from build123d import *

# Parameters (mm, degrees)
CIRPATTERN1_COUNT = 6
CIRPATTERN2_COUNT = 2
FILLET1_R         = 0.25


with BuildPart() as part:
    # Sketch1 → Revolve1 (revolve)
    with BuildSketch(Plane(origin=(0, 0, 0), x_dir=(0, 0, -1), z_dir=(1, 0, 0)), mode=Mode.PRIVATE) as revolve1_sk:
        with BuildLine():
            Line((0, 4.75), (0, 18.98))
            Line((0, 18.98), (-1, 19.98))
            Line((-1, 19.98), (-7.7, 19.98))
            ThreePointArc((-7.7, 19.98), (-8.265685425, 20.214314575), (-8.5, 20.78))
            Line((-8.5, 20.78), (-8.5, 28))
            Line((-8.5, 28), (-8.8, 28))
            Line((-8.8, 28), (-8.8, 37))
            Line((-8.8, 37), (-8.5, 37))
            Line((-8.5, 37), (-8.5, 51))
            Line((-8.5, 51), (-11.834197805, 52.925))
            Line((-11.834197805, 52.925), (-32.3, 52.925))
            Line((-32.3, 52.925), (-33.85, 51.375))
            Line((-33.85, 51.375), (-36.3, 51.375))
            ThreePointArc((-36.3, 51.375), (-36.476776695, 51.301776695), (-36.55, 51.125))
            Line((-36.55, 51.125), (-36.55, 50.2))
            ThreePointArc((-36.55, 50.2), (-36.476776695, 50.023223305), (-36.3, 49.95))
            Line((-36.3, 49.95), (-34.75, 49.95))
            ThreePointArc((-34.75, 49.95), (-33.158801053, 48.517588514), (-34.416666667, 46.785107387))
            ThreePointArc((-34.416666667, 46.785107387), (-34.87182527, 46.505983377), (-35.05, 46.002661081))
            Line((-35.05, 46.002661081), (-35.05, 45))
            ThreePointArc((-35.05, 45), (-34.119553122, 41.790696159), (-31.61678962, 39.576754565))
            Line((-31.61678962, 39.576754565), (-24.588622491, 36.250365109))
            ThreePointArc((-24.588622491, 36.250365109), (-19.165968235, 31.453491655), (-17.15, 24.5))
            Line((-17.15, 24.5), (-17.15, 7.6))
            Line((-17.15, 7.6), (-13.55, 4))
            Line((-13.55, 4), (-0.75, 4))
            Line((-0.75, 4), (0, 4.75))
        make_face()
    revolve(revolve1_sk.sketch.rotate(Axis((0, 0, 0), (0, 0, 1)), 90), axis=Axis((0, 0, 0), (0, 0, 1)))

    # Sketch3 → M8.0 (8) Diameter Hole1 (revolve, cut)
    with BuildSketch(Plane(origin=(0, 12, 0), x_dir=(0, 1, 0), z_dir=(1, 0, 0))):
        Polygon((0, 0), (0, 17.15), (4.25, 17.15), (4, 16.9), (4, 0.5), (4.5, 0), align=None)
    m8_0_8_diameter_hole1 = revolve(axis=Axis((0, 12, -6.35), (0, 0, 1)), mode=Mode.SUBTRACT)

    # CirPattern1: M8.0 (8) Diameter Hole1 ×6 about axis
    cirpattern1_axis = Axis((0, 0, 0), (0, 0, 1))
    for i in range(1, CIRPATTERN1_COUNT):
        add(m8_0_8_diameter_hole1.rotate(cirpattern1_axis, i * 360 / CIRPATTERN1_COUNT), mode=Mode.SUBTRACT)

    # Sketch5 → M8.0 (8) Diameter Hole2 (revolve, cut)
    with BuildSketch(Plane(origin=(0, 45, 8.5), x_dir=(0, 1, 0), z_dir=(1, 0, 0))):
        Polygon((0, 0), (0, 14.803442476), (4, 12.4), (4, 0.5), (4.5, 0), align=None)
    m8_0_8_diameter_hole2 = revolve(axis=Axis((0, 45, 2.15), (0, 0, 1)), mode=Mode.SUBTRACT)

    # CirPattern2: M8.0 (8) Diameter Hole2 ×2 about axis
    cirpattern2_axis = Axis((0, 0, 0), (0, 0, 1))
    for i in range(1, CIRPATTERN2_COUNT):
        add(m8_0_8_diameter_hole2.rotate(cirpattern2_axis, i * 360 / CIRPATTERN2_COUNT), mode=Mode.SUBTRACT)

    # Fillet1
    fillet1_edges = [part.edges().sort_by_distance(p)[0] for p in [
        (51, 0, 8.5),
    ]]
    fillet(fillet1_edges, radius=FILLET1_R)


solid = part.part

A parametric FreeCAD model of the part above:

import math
import FreeCAD as App
import Part
import Sketcher

V = App.Vector
Q = App.Units.Quantity


def edges_at(feature, points):
    """Names of the edges that pass closest to the given points."""
    edges = feature.Shape.Edges
    near = lambda p: min(range(len(edges)), key=lambda i: edges[i].distToShape(Part.Vertex(*p))[0])
    return sorted({f"Edge{near(p) + 1}" for p in points})

doc = App.newDocument("Part")
body = doc.addObject("PartDesign::Body", "Body")

# Sketch on YZ plane
sketch1 = doc.addObject("Sketcher::SketchObject", "Sketch")
body.addObject(sketch1)
sketch1.AttachmentSupport = (doc.YZ_Plane, [""])
sketch1.MapMode = "FlatFace"
sketch1.addGeometry(Part.LineSegment(V(4.75, 0, 0), V(18.98, 0, 0)), False)
sketch1.addGeometry(Part.LineSegment(V(18.98, 0, 0), V(19.98, 1, 0)), False)
sketch1.addGeometry(Part.LineSegment(V(19.98, 1, 0), V(19.98, 7.7, 0)), False)
sketch1.addGeometry(Part.ArcOfCircle(Part.Circle(V(20.78, 7.7, 0), V(0, 0, 1), 0.8), math.radians(90), math.radians(180)), False)
sketch1.addGeometry(Part.LineSegment(V(20.78, 8.5, 0), V(28, 8.5, 0)), False)
sketch1.addGeometry(Part.LineSegment(V(28, 8.5, 0), V(28, 8.8, 0)), False)
sketch1.addGeometry(Part.LineSegment(V(28, 8.8, 0), V(37, 8.8, 0)), False)
sketch1.addGeometry(Part.LineSegment(V(37, 8.8, 0), V(37, 8.5, 0)), False)
sketch1.addGeometry(Part.LineSegment(V(37, 8.5, 0), V(51, 8.5, 0)), False)
sketch1.addGeometry(Part.LineSegment(V(51, 8.5, 0), V(52.92, 11.83, 0)), False)
sketch1.addGeometry(Part.LineSegment(V(52.92, 11.83, 0), V(52.92, 32.3, 0)), False)
sketch1.addGeometry(Part.LineSegment(V(52.92, 32.3, 0), V(51.38, 33.85, 0)), False)
sketch1.addGeometry(Part.LineSegment(V(51.38, 33.85, 0), V(51.38, 36.3, 0)), False)
sketch1.addGeometry(Part.ArcOfCircle(Part.Circle(V(51.12, 36.3, 0), V(0, 0, 1), 0.25), math.radians(0), math.radians(90)), False)
sketch1.addGeometry(Part.LineSegment(V(51.12, 36.55, 0), V(50.2, 36.55, 0)), False)
sketch1.addGeometry(Part.ArcOfCircle(Part.Circle(V(50.2, 36.3, 0), V(0, 0, 1), 0.25), math.radians(90), math.radians(180)), False)
sketch1.addGeometry(Part.LineSegment(V(49.95, 36.3, 0), V(49.95, 34.75, 0)), False)
sketch1.addGeometry(Part.ArcOfCircle(Part.Circle(V(48.35, 34.75, 0), V(0, 0, 1), 1.6), math.radians(-168), math.radians(0)), False)
sketch1.addGeometry(Part.ArcOfCircle(Part.Circle(V(46, 34.25, 0), V(0, 0, 1), 0.8), math.radians(12), math.radians(90)), False)
sketch1.addGeometry(Part.LineSegment(V(46, 35.05, 0), V(45, 35.05, 0)), False)
sketch1.addGeometry(Part.ArcOfCircle(Part.Circle(V(45, 29.05, 0), V(0, 0, 1), 6), math.radians(90), math.radians(155)), False)
sketch1.addGeometry(Part.LineSegment(V(39.58, 31.62, 0), V(36.25, 24.59, 0)), False)
sketch1.addGeometry(Part.ArcOfCircle(Part.Circle(V(24.5, 30.15, 0), V(0, 0, 1), 13), math.radians(-90), math.radians(-25)), False)
sketch1.addGeometry(Part.LineSegment(V(24.5, 17.15, 0), V(7.6, 17.15, 0)), False)
sketch1.addGeometry(Part.LineSegment(V(7.6, 17.15, 0), V(4, 13.55, 0)), False)
sketch1.addGeometry(Part.LineSegment(V(4, 13.55, 0), V(4, 0.75, 0)), False)
sketch1.addGeometry(Part.LineSegment(V(4, 0.75, 0), V(4.75, 0, 0)), False)
sketch1.addConstraint(Sketcher.Constraint("Coincident", 0, 2, 1, 1))
sketch1.addConstraint(Sketcher.Constraint("Coincident", 1, 2, 2, 1))
sketch1.addConstraint(Sketcher.Constraint("Tangent", 2, 2, 3, 2))
sketch1.addConstraint(Sketcher.Constraint("Tangent", 3, 1, 4, 1))
sketch1.addConstraint(Sketcher.Constraint("Coincident", 4, 2, 5, 1))
sketch1.addConstraint(Sketcher.Constraint("Coincident", 5, 2, 6, 1))
sketch1.addConstraint(Sketcher.Constraint("Coincident", 6, 2, 7, 1))
sketch1.addConstraint(Sketcher.Constraint("Coincident", 7, 2, 8, 1))
sketch1.addConstraint(Sketcher.Constraint("Coincident", 8, 2, 9, 1))
sketch1.addConstraint(Sketcher.Constraint("Coincident", 9, 2, 10, 1))
sketch1.addConstraint(Sketcher.Constraint("Coincident", 10, 2, 11, 1))
sketch1.addConstraint(Sketcher.Constraint("Coincident", 11, 2, 12, 1))
sketch1.addConstraint(Sketcher.Constraint("Tangent", 12, 2, 13, 1))
sketch1.addConstraint(Sketcher.Constraint("Tangent", 13, 2, 14, 1))
sketch1.addConstraint(Sketcher.Constraint("Tangent", 14, 2, 15, 1))
sketch1.addConstraint(Sketcher.Constraint("Tangent", 15, 2, 16, 1))
sketch1.addConstraint(Sketcher.Constraint("Tangent", 16, 2, 17, 2))
sketch1.addConstraint(Sketcher.Constraint("Tangent", 17, 1, 18, 1))
sketch1.addConstraint(Sketcher.Constraint("Tangent", 18, 2, 19, 1))
sketch1.addConstraint(Sketcher.Constraint("Tangent", 19, 2, 20, 1))
sketch1.addConstraint(Sketcher.Constraint("Tangent", 20, 2, 21, 1))
sketch1.addConstraint(Sketcher.Constraint("Tangent", 21, 2, 22, 2))
sketch1.addConstraint(Sketcher.Constraint("Tangent", 22, 1, 23, 1))
sketch1.addConstraint(Sketcher.Constraint("Coincident", 23, 2, 24, 1))
sketch1.addConstraint(Sketcher.Constraint("Coincident", 24, 2, 25, 1))
sketch1.addConstraint(Sketcher.Constraint("Coincident", 25, 2, 26, 1))
sketch1.addConstraint(Sketcher.Constraint("Coincident", 26, 2, 0, 1))
sketch1.addConstraint(Sketcher.Constraint("Horizontal", 0))
sketch1.addConstraint(Sketcher.Constraint("Vertical", 2))
sketch1.addConstraint(Sketcher.Constraint("Horizontal", 4))
sketch1.addConstraint(Sketcher.Constraint("Vertical", 5))
sketch1.addConstraint(Sketcher.Constraint("Horizontal", 6))
sketch1.addConstraint(Sketcher.Constraint("Vertical", 7))
sketch1.addConstraint(Sketcher.Constraint("Horizontal", 8))
sketch1.addConstraint(Sketcher.Constraint("Vertical", 10))
sketch1.addConstraint(Sketcher.Constraint("Vertical", 12))
sketch1.addConstraint(Sketcher.Constraint("Horizontal", 14))
sketch1.addConstraint(Sketcher.Constraint("Vertical", 16))
sketch1.addConstraint(Sketcher.Constraint("Horizontal", 19))
sketch1.addConstraint(Sketcher.Constraint("Horizontal", 23))
sketch1.addConstraint(Sketcher.Constraint("Vertical", 25))
sketch1.addConstraint(Sketcher.Constraint("Equal", 13, 15))
sketch1.addConstraint(Sketcher.Constraint("Equal", 3, 18))
sketch1.addConstraint(Sketcher.Constraint("PointOnObject", 0, 2, -1))
sketch1.addConstraint(Sketcher.Constraint("Perpendicular", 1, 11))
sketch1.addConstraint(Sketcher.Constraint("Perpendicular", 11, 24))
sketch1.addConstraint(Sketcher.Constraint("Perpendicular", 24, 26))
sketch1.addConstraint(Sketcher.Constraint("Horizontal", 4, 2, 7, 2))
sketch1.addConstraint(Sketcher.Constraint("Radius", 20, Q("6 mm")))
sketch1.addConstraint(Sketcher.Constraint("Radius", 22, Q("13 mm")))
sketch1.addConstraint(Sketcher.Constraint("Radius", 3, Q("0.8 mm")))
sketch1.addConstraint(Sketcher.Constraint("Radius", 17, Q("1.6 mm")))
sketch1.addConstraint(Sketcher.Constraint("DistanceX", 6, 1, 6, 2, Q("9 mm")))
sketch1.addConstraint(Sketcher.Constraint("DistanceX", 8, 1, 8, 2, Q("14 mm")))
sketch1.addConstraint(Sketcher.Constraint("Angle", 1, Q("45 deg")))
sketch1.addConstraint(Sketcher.Constraint("Angle", 9, Q("60 deg")))
sketch1.addConstraint(Sketcher.Constraint("Radius", 13, Q("0.25 mm")))
sketch1.addConstraint(Sketcher.Constraint("DistanceX", 23, 2, 23, 1, Q("16.9 mm")))
sketch1.addConstraint(Sketcher.Constraint("DistanceY", 2, 1, 2, 2, Q("6.7 mm")))
sketch1.addConstraint(Sketcher.Constraint("DistanceY", 5, 1, 5, 2, Q("0.3 mm")))
sketch1.addConstraint(Sketcher.Constraint("DistanceY", 25, 2, 25, 1, Q("12.8 mm")))
sketch1.addConstraint(Sketcher.Constraint("DistanceX", -1, 1, 20, 3, Q("45 mm")))
sketch1.addConstraint(Sketcher.Constraint("DistanceY", -1, 1, 1, 2, Q("1 mm")))
sketch1.addConstraint(Sketcher.Constraint("DistanceX", -1, 1, 4, 2, Q("28 mm")))
sketch1.addConstraint(Sketcher.Constraint("DistanceX", -1, 1, 24, 2, Q("4 mm")))
sketch1.addConstraint(Sketcher.Constraint("DistanceY", 10, 2, 13, 3, Q("4 mm")))
sketch1.addConstraint(Sketcher.Constraint("DistanceX", 0, 1, 0, 2, Q("14.23 mm")))
sketch1.addConstraint(Sketcher.Constraint("DistanceX", 4, 1, 4, 2, Q("7.22 mm")))
sketch1.addConstraint(Sketcher.Constraint("DistanceY", 12, 1, 12, 2, Q("2.45 mm")))
sketch1.addConstraint(Sketcher.Constraint("DistanceY", 16, 2, 16, 1, Q("1.55 mm")))
sketch1.addConstraint(Sketcher.Constraint("DistanceY", -1, 1, 13, 3, Q("36.3 mm")))
sketch1.addConstraint(Sketcher.Constraint("DistanceX", -1, 1, 15, 3, Q("50.2 mm")))
sketch1.addConstraint(Sketcher.Constraint("DistanceX", -1, 1, 22, 3, Q("24.5 mm")))
sketch1.addConstraint(Sketcher.Constraint("DistanceY", 18, 3, 17, 3, Q("0.5 mm")))
sketch1.addConstraint(Sketcher.Constraint("Distance", 9, Q("3.85 mm")))
revolution = doc.addObject("PartDesign::Revolution", "Revolution")
body.addObject(revolution)
revolution.Profile = sketch1
revolution.ReferenceAxis = (sketch1, ["V_Axis"])
revolution.Angle = 360

# Sketch on YZ plane
sketch2 = doc.addObject("Sketcher::SketchObject", "Sketch001")
body.addObject(sketch2)
sketch2.AttachmentSupport = (doc.YZ_Plane, [""])
sketch2.MapMode = "FlatFace"
sketch2.addGeometry(Part.LineSegment(V(12, 17.15, 0), V(12, 0, 0)), False)
sketch2.addGeometry(Part.LineSegment(V(12, 0, 0), V(16.5, 0, 0)), False)
sketch2.addGeometry(Part.LineSegment(V(16.5, 0, 0), V(16, 0.5, 0)), False)
sketch2.addGeometry(Part.LineSegment(V(16, 0.5, 0), V(16, 16.9, 0)), False)
sketch2.addGeometry(Part.LineSegment(V(16, 16.9, 0), V(16.25, 17.15, 0)), False)
sketch2.addGeometry(Part.LineSegment(V(16.25, 17.15, 0), V(12, 17.15, 0)), False)
sketch2.addGeometry(Part.LineSegment(V(12, 0, 0), V(12, 17.15, 0)), True)  # axis
sketch2.addConstraint(Sketcher.Constraint("Coincident", 0, 2, 1, 1))
sketch2.addConstraint(Sketcher.Constraint("Coincident", 1, 2, 2, 1))
sketch2.addConstraint(Sketcher.Constraint("Coincident", 2, 2, 3, 1))
sketch2.addConstraint(Sketcher.Constraint("Coincident", 3, 2, 4, 1))
sketch2.addConstraint(Sketcher.Constraint("Coincident", 4, 2, 5, 1))
sketch2.addConstraint(Sketcher.Constraint("Coincident", 5, 2, 0, 1))
sketch2.addConstraint(Sketcher.Constraint("Vertical", 0))
sketch2.addConstraint(Sketcher.Constraint("Horizontal", 1))
sketch2.addConstraint(Sketcher.Constraint("Vertical", 3))
sketch2.addConstraint(Sketcher.Constraint("Horizontal", 5))
sketch2.addConstraint(Sketcher.Constraint("Vertical", 6))
sketch2.addConstraint(Sketcher.Constraint("Coincident", 6, 1, 0, 2))
sketch2.addConstraint(Sketcher.Constraint("PointOnObject", 0, 2, -1))
sketch2.addConstraint(Sketcher.Constraint("Perpendicular", 2, 4))
sketch2.addConstraint(Sketcher.Constraint("Horizontal", 4, 2, 6, 2))
sketch2.addConstraint(Sketcher.Constraint("Angle", 2, Q("135 deg")))
sketch2.addConstraint(Sketcher.Constraint("DistanceX", 1, 1, 1, 2, Q("4.5 mm")))
sketch2.addConstraint(Sketcher.Constraint("DistanceY", 3, 1, 3, 2, Q("16.4 mm")))
sketch2.addConstraint(Sketcher.Constraint("DistanceX", -1, 1, 0, 2, Q("12 mm")))
sketch2.addConstraint(Sketcher.Constraint("DistanceX", -1, 1, 2, 2, Q("16 mm")))
sketch2.addConstraint(Sketcher.Constraint("DistanceX", 5, 2, 5, 1, Q("4.25 mm")))
groove = doc.addObject("PartDesign::Groove", "Groove")
body.addObject(groove)
groove.Profile = sketch2
groove.ReferenceAxis = (sketch2, ["Axis0"])
groove.Angle = 360
doc.recompute()

polarpattern = doc.addObject("PartDesign::PolarPattern", "PolarPattern")
body.addObject(polarpattern)
polarpattern.Originals = [groove]
polarpattern.Axis = (doc.Z_Axis, [""])
polarpattern.Angle = 360
polarpattern.Occurrences = 6
body.Tip = polarpattern

# Sketch on YZ plane
sketch3 = doc.addObject("Sketcher::SketchObject", "Sketch002")
body.addObject(sketch3)
sketch3.AttachmentSupport = (doc.YZ_Plane, [""])
sketch3.MapMode = "FlatFace"
sketch3.addGeometry(Part.LineSegment(V(45, 23.3, 0), V(45, 8.5, 0)), False)
sketch3.addGeometry(Part.LineSegment(V(45, 8.5, 0), V(49.5, 8.5, 0)), False)
sketch3.addGeometry(Part.LineSegment(V(49.5, 8.5, 0), V(49, 9, 0)), False)
sketch3.addGeometry(Part.LineSegment(V(49, 9, 0), V(49, 20.9, 0)), False)
sketch3.addGeometry(Part.LineSegment(V(49, 20.9, 0), V(45, 23.3, 0)), False)
sketch3.addGeometry(Part.LineSegment(V(45, 8.5, 0), V(45, 23.3, 0)), True)  # axis
sketch3.addConstraint(Sketcher.Constraint("Coincident", 0, 2, 1, 1))
sketch3.addConstraint(Sketcher.Constraint("Coincident", 1, 2, 2, 1))
sketch3.addConstraint(Sketcher.Constraint("Coincident", 2, 2, 3, 1))
sketch3.addConstraint(Sketcher.Constraint("Coincident", 3, 2, 4, 1))
sketch3.addConstraint(Sketcher.Constraint("Coincident", 4, 2, 0, 1))
sketch3.addConstraint(Sketcher.Constraint("Vertical", 0))
sketch3.addConstraint(Sketcher.Constraint("Horizontal", 1))
sketch3.addConstraint(Sketcher.Constraint("Vertical", 3))
sketch3.addConstraint(Sketcher.Constraint("Vertical", 5))
sketch3.addConstraint(Sketcher.Constraint("Coincident", 5, 1, 0, 2))
sketch3.addConstraint(Sketcher.Constraint("Equal", 0, 5))
sketch3.addConstraint(Sketcher.Constraint("Angle", 2, Q("135 deg")))
sketch3.addConstraint(Sketcher.Constraint("Angle", 4, Q("149 deg")))
sketch3.addConstraint(Sketcher.Constraint("DistanceX", 1, 1, 1, 2, Q("4.5 mm")))
sketch3.addConstraint(Sketcher.Constraint("DistanceY", 3, 1, 3, 2, Q("11.9 mm")))
sketch3.addConstraint(Sketcher.Constraint("DistanceX", -1, 1, 0, 2, Q("45 mm")))
sketch3.addConstraint(Sketcher.Constraint("DistanceX", -1, 1, 2, 2, Q("49 mm")))
sketch3.addConstraint(Sketcher.Constraint("DistanceY", -1, 1, 2, 2, Q("9 mm")))
groove2 = doc.addObject("PartDesign::Groove", "Groove001")
body.addObject(groove2)
groove2.Profile = sketch3
groove2.ReferenceAxis = (sketch3, ["Axis0"])
groove2.Angle = 360
doc.recompute()

polarpattern2 = doc.addObject("PartDesign::PolarPattern", "PolarPattern001")
body.addObject(polarpattern2)
polarpattern2.Originals = [groove2]
polarpattern2.Axis = (doc.Z_Axis, [""])
polarpattern2.Angle = 360
polarpattern2.Occurrences = 2
body.Tip = polarpattern2
doc.recompute()

fillet = doc.addObject("PartDesign::Fillet", "Fillet")
body.addObject(fillet)
fillet.Base = (polarpattern2, edges_at(polarpattern2, [(51, 0, 8.5)]))
fillet.Radius = 0.25

doc.recompute()
